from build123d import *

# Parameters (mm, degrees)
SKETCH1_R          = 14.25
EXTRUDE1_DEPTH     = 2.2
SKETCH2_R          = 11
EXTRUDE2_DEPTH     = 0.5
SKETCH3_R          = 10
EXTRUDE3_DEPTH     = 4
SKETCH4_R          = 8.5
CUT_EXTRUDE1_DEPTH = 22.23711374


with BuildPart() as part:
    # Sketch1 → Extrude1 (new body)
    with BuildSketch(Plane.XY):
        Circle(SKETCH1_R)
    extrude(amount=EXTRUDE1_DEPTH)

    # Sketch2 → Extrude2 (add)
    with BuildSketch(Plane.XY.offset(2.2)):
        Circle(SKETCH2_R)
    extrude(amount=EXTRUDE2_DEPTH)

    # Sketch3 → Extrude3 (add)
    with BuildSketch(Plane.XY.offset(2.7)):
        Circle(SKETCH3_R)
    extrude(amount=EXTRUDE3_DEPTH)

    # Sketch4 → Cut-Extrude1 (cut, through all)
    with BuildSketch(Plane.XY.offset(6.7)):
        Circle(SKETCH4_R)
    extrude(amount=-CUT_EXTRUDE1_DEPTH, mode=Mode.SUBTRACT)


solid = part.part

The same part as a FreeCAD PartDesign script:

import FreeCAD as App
import Part
import Sketcher
Q = App.Units.Quantity

doc = App.newDocument("Part")
body = doc.addObject("PartDesign::Body", "Body")

sketch1 = body.newObject("Sketcher::SketchObject", "Sketch")
sketch1.AttachmentSupport = (doc.getObject("XY_Plane"), [""])
sketch1.MapMode = "FlatFace"
sketch1.addGeometry(Part.Circle(App.Vector(0, 0, 0), App.Vector(0, 0, 1), 14), False)
sketch1.addConstraint([
    Sketcher.Constraint("Coincident", 0, 3, -1, 1),
    Sketcher.Constraint("Diameter", 0, Q("28.5 mm")),
])
pad1 = body.newObject("PartDesign::Pad", "Pad")
pad1.Profile = sketch1
pad1.Length = 2.2

sketch2 = body.newObject("Sketcher::SketchObject", "Sketch001")
sketch2.AttachmentSupport = (doc.getObject("XY_Plane"), [""])
sketch2.MapMode = "FlatFace"
sketch2.AttachmentOffset = App.Placement(App.Vector(0, 0, 2.2), App.Rotation())
sketch2.addGeometry(Part.Circle(App.Vector(0, 0, 0), App.Vector(0, 0, 1), 11), False)
sketch2.addConstraint([
    Sketcher.Constraint("Coincident", 0, 3, -1, 1),
    Sketcher.Constraint("Diameter", 0, Q("22 mm")),
])
pad2 = body.newObject("PartDesign::Pad", "Pad001")
pad2.Profile = sketch2
pad2.Length = 0.5

sketch3 = body.newObject("Sketcher::SketchObject", "Sketch002")
sketch3.AttachmentSupport = (doc.getObject("XY_Plane"), [""])
sketch3.MapMode = "FlatFace"
sketch3.AttachmentOffset = App.Placement(App.Vector(0, 0, 2.7), App.Rotation())
sketch3.addGeometry(Part.Circle(App.Vector(0, 0, 0), App.Vector(0, 0, 1), 10), False)
sketch3.addConstraint([
    Sketcher.Constraint("Coincident", 0, 3, -1, 1),
    Sketcher.Constraint("Diameter", 0, Q("20 mm")),
])
pad3 = body.newObject("PartDesign::Pad", "Pad002")
pad3.Profile = sketch3
pad3.Length = 4

sketch4 = body.newObject("Sketcher::SketchObject", "Sketch003")
sketch4.AttachmentSupport = (doc.getObject("XY_Plane"), [""])
sketch4.MapMode = "FlatFace"
sketch4.AttachmentOffset = App.Placement(App.Vector(0, 0, 6.7), App.Rotation())
sketch4.addGeometry(Part.Circle(App.Vector(0, 0, 0), App.Vector(0, 0, 1), 8), False)
sketch4.addConstraint([
    Sketcher.Constraint("Coincident", 0, 3, -1, 1),
    Sketcher.Constraint("Diameter", 0, Q("17 mm")),
])
pocket1 = body.newObject("PartDesign::Pocket", "Pocket")
pocket1.Profile = sketch4
pocket1.Type = "ThroughAll"

doc.recompute()
